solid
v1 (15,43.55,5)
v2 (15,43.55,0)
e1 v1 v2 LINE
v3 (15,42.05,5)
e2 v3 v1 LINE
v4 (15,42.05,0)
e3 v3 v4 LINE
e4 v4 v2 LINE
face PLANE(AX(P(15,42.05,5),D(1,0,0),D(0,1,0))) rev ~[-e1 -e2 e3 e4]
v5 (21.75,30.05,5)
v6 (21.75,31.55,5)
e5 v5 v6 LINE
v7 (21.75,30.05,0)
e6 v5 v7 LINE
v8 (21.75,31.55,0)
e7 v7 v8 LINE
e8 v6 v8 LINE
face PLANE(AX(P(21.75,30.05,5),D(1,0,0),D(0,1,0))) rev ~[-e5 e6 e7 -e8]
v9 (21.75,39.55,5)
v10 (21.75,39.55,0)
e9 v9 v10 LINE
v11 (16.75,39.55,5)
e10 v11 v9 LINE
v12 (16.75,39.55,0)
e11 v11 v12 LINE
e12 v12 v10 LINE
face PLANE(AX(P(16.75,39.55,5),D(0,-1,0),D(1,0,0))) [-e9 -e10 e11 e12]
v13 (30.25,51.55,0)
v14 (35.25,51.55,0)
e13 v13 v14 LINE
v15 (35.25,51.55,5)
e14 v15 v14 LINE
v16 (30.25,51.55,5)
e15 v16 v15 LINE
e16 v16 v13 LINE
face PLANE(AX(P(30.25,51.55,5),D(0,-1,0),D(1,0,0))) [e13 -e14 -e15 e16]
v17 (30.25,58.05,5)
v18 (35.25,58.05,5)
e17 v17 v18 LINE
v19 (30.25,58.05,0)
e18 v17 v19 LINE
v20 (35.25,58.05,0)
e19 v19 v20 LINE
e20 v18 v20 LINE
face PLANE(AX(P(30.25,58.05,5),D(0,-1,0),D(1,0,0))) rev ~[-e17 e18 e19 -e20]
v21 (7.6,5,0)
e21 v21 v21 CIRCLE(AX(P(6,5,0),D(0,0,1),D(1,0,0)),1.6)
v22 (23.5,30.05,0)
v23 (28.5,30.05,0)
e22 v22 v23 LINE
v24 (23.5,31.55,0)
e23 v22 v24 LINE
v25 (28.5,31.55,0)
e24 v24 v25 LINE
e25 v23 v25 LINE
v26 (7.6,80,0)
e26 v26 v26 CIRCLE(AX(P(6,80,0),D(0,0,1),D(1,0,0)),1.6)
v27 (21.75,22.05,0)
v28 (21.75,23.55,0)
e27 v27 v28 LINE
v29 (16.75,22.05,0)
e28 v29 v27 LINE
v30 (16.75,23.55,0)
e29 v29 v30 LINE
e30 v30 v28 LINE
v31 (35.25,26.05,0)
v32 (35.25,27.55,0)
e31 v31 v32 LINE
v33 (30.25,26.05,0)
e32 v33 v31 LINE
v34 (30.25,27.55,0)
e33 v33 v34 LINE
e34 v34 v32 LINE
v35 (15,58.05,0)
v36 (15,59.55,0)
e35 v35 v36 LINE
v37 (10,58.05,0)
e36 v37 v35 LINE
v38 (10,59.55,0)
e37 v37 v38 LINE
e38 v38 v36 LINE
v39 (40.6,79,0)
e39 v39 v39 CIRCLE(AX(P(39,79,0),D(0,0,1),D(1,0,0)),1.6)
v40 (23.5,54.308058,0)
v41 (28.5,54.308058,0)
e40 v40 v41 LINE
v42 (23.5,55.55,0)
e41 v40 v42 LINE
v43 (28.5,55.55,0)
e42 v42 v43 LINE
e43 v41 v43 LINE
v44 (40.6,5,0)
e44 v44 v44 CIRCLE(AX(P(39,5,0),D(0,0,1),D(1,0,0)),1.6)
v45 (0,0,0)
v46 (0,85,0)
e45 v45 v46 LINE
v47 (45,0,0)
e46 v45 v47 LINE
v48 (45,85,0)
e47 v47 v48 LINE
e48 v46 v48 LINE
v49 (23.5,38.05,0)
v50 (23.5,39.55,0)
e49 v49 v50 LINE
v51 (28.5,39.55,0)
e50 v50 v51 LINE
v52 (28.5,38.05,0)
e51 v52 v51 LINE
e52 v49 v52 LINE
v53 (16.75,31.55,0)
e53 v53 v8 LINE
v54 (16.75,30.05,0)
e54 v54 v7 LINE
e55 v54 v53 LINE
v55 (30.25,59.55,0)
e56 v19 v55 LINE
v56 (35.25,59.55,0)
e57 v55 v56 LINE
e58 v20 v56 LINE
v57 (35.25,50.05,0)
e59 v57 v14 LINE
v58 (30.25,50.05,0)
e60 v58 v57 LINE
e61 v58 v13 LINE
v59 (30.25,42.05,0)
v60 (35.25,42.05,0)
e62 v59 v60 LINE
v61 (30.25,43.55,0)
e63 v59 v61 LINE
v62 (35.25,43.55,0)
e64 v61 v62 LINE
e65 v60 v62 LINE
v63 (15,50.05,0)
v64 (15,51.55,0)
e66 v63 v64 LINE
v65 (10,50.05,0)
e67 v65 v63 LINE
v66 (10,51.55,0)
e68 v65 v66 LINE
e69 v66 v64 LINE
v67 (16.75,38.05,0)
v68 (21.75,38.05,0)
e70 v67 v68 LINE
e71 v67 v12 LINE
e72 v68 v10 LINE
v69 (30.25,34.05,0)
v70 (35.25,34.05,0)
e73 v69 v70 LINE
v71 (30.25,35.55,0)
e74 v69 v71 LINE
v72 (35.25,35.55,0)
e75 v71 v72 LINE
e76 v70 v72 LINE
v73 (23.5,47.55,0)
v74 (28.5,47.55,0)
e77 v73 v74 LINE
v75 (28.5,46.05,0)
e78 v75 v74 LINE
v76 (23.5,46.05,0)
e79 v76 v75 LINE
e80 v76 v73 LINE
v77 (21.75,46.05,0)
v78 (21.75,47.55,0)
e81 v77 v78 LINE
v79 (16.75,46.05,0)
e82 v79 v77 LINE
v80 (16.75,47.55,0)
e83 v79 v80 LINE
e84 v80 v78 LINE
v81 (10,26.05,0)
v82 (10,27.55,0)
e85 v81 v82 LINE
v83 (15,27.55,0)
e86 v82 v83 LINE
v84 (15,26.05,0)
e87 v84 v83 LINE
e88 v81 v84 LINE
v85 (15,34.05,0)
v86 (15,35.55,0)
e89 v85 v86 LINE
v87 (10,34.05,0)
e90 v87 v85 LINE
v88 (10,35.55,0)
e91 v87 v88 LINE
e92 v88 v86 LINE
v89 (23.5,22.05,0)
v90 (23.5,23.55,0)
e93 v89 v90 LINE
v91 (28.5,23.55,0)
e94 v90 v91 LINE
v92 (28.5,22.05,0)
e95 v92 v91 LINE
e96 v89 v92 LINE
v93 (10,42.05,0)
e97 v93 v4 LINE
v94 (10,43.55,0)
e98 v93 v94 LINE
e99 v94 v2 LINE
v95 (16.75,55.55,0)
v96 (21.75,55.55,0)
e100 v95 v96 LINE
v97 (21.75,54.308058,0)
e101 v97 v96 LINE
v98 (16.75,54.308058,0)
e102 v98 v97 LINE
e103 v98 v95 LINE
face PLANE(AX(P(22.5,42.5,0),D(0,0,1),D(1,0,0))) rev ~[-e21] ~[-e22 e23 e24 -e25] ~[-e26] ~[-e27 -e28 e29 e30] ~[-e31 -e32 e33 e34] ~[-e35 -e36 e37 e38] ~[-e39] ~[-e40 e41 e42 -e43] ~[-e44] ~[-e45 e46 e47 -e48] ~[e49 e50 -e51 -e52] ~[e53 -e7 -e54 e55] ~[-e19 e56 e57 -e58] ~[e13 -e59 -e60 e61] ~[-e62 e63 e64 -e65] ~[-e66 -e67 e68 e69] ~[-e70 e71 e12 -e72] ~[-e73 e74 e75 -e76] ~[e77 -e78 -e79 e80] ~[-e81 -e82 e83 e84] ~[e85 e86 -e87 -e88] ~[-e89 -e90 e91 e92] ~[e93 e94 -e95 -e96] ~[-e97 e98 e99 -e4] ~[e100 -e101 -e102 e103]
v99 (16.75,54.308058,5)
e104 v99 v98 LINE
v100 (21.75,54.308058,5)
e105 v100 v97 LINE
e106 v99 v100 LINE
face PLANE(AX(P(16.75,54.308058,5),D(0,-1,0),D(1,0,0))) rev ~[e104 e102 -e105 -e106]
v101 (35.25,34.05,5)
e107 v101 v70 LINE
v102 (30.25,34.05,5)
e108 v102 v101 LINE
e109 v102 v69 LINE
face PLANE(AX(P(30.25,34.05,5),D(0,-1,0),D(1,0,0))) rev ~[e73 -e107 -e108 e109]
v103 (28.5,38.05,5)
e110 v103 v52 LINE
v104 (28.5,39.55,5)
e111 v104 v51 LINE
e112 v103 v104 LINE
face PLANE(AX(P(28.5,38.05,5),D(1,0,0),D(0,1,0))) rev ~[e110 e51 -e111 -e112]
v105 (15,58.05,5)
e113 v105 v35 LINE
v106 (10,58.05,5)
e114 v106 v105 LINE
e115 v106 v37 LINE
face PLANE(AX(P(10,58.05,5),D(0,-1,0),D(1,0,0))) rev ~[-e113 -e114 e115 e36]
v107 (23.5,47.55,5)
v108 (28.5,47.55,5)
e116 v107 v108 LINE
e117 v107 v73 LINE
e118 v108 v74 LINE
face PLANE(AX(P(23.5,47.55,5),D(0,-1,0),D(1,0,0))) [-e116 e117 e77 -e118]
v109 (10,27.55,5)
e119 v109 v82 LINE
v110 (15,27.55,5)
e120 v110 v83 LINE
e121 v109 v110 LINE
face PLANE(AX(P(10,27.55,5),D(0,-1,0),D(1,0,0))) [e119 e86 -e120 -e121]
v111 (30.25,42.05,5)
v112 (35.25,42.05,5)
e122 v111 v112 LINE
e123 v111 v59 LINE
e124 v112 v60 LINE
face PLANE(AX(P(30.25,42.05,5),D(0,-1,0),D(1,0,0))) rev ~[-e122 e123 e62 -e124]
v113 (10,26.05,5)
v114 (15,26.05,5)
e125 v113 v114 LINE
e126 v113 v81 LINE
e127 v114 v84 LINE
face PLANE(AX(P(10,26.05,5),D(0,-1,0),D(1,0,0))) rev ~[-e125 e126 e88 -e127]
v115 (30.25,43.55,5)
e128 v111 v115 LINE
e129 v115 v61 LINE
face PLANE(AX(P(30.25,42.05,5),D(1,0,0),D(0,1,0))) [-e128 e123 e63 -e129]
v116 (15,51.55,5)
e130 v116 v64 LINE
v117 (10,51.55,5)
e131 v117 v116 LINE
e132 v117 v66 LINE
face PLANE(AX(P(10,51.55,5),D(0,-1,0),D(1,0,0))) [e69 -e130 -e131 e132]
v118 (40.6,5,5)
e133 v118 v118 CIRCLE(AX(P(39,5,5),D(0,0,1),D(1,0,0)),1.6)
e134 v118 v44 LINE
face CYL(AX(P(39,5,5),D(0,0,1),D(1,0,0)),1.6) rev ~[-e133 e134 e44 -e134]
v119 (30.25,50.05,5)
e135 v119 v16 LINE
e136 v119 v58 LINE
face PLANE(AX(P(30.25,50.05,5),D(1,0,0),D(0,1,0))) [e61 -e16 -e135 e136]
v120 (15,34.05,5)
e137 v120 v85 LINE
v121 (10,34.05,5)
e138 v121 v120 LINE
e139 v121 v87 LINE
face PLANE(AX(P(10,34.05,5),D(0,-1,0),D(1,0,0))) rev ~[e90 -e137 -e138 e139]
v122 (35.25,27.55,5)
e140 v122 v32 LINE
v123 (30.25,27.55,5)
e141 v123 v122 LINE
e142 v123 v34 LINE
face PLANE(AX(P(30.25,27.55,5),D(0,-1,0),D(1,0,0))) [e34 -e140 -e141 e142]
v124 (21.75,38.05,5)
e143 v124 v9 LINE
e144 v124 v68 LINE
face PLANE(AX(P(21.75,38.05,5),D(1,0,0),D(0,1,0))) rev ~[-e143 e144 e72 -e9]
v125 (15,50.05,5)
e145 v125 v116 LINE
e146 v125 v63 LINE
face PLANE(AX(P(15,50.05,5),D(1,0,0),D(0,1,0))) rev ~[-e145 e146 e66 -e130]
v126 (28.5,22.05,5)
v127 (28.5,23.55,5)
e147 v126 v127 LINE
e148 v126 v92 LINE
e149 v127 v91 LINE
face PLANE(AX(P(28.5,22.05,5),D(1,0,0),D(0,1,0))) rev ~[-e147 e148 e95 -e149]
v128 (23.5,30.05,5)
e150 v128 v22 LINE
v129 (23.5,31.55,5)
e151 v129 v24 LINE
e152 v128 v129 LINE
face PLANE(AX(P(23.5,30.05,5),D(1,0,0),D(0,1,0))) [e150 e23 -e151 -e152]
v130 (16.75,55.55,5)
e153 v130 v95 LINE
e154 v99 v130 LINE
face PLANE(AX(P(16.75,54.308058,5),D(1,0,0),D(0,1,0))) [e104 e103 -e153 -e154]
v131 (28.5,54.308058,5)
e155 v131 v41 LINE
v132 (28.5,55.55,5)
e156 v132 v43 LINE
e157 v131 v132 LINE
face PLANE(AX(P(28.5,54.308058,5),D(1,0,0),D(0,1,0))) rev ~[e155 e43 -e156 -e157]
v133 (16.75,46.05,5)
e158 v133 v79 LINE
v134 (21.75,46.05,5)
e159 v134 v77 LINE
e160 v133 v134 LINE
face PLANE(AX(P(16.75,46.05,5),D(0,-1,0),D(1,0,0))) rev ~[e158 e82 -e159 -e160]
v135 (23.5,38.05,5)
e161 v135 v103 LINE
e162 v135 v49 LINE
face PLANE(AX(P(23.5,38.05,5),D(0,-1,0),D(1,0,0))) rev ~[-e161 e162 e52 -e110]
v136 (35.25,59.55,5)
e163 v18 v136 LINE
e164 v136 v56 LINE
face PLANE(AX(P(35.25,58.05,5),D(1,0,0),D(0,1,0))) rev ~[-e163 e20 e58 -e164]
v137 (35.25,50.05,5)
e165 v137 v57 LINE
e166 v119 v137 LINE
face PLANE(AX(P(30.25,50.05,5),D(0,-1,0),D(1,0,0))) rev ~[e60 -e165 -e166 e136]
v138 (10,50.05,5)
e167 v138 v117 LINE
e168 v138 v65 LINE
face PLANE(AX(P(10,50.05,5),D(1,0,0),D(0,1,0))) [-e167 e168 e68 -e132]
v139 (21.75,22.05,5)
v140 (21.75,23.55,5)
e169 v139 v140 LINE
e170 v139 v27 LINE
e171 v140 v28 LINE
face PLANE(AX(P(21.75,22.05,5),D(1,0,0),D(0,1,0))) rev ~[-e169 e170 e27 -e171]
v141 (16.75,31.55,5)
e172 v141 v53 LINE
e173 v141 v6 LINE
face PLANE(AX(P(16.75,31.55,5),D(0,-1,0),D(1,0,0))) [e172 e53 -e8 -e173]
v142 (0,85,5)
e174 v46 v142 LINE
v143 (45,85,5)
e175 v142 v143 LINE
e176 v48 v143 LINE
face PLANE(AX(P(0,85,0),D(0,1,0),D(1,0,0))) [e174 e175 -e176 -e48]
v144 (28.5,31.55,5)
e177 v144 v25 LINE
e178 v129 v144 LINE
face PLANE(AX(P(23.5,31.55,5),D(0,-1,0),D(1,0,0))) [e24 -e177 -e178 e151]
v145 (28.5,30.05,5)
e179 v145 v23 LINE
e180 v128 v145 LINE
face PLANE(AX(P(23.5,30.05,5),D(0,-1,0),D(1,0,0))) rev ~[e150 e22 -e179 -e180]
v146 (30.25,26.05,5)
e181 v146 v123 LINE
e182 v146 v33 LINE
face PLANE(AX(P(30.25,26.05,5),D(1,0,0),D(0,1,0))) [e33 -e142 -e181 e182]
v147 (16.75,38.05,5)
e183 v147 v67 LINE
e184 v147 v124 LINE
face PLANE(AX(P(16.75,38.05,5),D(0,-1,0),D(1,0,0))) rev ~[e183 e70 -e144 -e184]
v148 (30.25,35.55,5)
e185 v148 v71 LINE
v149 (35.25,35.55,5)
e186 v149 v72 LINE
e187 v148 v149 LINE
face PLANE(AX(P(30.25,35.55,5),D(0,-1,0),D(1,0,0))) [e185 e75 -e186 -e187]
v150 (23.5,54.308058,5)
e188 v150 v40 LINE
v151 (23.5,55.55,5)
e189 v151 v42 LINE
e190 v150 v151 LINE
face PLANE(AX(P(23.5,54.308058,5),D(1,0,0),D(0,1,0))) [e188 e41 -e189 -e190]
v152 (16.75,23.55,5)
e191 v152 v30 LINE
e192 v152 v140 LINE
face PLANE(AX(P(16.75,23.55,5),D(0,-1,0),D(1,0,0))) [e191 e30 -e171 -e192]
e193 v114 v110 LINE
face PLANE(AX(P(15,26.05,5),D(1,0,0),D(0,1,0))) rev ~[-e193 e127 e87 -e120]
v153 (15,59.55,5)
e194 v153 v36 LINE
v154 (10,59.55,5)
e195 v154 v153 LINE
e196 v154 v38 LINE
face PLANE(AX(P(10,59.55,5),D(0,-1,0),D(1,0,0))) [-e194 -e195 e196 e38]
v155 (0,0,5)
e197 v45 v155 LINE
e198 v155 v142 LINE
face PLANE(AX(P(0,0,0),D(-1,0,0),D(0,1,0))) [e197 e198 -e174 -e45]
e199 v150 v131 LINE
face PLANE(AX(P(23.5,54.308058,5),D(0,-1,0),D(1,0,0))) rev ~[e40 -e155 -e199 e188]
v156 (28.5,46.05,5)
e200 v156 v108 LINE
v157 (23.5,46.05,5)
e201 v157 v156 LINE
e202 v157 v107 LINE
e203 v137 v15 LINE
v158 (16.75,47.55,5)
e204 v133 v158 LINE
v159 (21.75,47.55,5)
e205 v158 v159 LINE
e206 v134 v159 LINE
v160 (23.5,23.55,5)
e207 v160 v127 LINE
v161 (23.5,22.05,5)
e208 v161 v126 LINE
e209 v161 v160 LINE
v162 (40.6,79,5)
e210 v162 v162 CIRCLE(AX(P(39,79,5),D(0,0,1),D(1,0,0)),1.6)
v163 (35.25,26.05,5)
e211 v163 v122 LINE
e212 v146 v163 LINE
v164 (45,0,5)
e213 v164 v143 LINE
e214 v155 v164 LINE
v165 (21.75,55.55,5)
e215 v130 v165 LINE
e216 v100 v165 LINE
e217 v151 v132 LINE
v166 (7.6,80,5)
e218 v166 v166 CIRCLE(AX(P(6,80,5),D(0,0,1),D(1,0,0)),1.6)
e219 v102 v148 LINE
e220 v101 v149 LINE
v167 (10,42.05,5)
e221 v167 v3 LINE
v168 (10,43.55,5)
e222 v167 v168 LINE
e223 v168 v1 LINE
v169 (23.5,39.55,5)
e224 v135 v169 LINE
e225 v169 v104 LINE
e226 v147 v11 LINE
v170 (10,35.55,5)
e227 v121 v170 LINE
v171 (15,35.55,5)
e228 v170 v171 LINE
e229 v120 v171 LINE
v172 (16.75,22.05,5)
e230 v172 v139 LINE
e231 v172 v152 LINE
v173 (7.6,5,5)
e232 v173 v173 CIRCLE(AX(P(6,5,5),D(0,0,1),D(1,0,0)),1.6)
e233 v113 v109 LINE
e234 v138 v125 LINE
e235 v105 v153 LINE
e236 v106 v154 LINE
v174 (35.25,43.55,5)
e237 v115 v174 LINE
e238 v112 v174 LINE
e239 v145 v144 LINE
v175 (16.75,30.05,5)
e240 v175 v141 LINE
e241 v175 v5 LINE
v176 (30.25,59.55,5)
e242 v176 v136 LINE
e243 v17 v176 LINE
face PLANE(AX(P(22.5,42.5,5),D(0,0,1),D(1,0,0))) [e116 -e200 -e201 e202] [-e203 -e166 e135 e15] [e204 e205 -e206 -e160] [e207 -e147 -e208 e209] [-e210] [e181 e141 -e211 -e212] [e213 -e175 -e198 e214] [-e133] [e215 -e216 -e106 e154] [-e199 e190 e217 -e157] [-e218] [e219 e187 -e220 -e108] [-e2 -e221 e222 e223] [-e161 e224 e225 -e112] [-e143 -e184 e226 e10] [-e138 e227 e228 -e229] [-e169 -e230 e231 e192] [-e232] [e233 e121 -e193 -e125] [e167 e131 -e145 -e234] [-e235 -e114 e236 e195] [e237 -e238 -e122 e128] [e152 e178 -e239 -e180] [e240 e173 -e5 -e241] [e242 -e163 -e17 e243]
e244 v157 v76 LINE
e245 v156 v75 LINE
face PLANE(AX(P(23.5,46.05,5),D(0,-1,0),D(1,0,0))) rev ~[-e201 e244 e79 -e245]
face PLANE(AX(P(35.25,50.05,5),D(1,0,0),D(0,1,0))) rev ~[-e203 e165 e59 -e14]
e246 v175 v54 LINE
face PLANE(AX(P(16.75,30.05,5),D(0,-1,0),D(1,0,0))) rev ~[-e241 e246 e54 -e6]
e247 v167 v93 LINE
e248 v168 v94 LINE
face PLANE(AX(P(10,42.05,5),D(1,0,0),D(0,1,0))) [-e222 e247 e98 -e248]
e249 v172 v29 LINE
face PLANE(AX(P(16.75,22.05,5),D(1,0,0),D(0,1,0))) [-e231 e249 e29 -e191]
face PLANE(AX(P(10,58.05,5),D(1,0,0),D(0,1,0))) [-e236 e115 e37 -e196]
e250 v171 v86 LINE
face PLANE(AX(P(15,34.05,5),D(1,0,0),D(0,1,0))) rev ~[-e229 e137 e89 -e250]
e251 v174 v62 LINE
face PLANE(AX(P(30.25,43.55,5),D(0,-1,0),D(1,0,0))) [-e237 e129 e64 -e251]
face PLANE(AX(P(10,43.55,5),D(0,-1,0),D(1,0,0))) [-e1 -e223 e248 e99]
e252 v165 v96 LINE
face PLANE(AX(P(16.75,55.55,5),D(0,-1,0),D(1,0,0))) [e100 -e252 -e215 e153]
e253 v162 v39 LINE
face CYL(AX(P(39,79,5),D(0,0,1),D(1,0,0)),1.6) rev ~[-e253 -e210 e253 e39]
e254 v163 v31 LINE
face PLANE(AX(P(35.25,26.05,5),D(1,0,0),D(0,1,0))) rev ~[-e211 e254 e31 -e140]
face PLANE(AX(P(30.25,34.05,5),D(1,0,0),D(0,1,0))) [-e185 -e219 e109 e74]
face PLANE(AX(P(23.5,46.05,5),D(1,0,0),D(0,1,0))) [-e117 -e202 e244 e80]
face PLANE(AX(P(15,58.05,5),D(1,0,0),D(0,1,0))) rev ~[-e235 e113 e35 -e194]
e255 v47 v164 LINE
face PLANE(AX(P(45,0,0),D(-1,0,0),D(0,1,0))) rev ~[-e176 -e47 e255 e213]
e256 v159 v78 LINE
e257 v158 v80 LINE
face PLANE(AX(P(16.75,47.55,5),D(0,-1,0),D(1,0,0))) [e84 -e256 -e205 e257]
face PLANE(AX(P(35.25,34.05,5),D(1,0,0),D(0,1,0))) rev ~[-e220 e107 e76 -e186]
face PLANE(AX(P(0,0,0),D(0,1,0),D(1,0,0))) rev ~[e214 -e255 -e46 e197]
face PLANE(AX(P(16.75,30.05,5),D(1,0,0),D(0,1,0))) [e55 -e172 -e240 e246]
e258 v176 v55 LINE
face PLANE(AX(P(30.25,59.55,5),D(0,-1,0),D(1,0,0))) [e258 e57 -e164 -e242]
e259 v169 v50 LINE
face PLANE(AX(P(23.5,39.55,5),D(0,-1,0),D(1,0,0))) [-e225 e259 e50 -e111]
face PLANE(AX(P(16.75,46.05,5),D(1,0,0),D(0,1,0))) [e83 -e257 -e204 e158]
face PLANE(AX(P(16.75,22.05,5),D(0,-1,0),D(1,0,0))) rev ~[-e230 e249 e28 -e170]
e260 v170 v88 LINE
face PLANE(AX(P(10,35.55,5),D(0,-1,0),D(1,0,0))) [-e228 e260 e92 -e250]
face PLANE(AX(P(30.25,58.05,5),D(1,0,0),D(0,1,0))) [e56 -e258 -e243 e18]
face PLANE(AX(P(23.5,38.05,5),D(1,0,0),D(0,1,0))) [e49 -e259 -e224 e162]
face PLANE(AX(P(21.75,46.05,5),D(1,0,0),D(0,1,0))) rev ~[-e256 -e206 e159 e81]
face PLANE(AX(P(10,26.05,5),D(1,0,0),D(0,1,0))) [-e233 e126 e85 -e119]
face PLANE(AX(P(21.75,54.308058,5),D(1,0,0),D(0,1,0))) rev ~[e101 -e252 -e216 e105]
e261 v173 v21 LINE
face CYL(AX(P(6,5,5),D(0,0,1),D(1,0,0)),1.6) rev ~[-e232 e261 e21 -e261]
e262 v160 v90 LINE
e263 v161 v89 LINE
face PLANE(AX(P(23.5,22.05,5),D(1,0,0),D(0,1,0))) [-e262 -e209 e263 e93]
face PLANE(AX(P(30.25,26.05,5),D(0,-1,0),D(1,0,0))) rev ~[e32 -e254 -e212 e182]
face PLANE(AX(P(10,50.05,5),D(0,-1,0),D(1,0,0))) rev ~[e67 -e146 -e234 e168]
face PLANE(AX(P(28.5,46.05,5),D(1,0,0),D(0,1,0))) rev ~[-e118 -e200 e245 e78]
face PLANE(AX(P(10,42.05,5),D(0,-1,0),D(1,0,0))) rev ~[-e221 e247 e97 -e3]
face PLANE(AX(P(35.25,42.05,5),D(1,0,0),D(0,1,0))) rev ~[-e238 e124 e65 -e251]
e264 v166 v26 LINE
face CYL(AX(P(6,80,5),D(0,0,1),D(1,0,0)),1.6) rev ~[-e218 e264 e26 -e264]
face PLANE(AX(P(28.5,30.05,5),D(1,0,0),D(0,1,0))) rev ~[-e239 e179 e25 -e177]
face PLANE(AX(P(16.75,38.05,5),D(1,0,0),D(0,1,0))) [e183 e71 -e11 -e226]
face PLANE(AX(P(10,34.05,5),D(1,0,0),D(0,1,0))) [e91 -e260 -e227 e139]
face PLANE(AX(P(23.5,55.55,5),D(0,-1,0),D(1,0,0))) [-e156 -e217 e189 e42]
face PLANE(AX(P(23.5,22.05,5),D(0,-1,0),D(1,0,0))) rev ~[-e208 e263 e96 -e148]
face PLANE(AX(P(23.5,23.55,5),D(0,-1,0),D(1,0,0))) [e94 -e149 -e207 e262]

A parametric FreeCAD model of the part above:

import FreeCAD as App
import Part
import Sketcher
Q = App.Units.Quantity

doc = App.newDocument("Part")
body = doc.addObject("PartDesign::Body", "Body")

# Sketch on XY plane
sketch1 = body.newObject("Sketcher::SketchObject", "Sketch")
sketch1.AttachmentSupport = (doc.getObject("XY_Plane"), [""])
sketch1.MapMode = "FlatFace"
sketch1.addGeometry(Part.LineSegment(App.Vector(0, 85, 0), App.Vector(0, 0, 0)), False)
sketch1.addGeometry(Part.LineSegment(App.Vector(0, 0, 0), App.Vector(45, 0, 0)), False)
sketch1.addGeometry(Part.LineSegment(App.Vector(45, 0, 0), App.Vector(45, 85, 0)), False)
sketch1.addGeometry(Part.LineSegment(App.Vector(45, 85, 0), App.Vector(0, 85, 0)), False)
sketch1.addConstraint(Sketcher.Constraint("Coincident", 0, 2, 1, 1))
sketch1.addConstraint(Sketcher.Constraint("Coincident", 1, 2, 2, 1))
sketch1.addConstraint(Sketcher.Constraint("Coincident", 2, 2, 3, 1))
sketch1.addConstraint(Sketcher.Constraint("Coincident", 3, 2, 0, 1))
sketch1.addConstraint(Sketcher.Constraint("Vertical", 0))
sketch1.addConstraint(Sketcher.Constraint("Horizontal", 1))
sketch1.addConstraint(Sketcher.Constraint("Vertical", 2))
sketch1.addConstraint(Sketcher.Constraint("Horizontal", 3))
sketch1.addConstraint(Sketcher.Constraint("Coincident", 0, 2, -1, 1))
sketch1.addConstraint(Sketcher.Constraint("DistanceX", 1, 1, 1, 2, Q("45 mm")))
sketch1.addConstraint(Sketcher.Constraint("DistanceY", 0, 2, 0, 1, Q("85 mm")))
pad1 = body.newObject("PartDesign::Pad", "Pad")
pad1.Profile = sketch1
pad1.Length = 5

# Sketch on XY plane
sketch2 = body.newObject("Sketcher::SketchObject", "Sketch001")
sketch2.AttachmentSupport = (doc.getObject("XY_Plane"), [""])
sketch2.MapMode = "FlatFace"
sketch2.AttachmentOffset = App.Placement(App.Vector(0, 0, 5), App.Rotation())
sketch2.addGeometry(Part.LineSegment(App.Vector(10, 59.5, 0), App.Vector(10, 58, 0)), False)
sketch2.addGeometry(Part.LineSegment(App.Vector(10, 58, 0), App.Vector(15, 58, 0)), False)
sketch2.addGeometry(Part.LineSegment(App.Vector(15, 58, 0), App.Vector(15, 59.5, 0)), False)
sketch2.addGeometry(Part.LineSegment(App.Vector(15, 59.5, 0), App.Vector(10, 59.5, 0)), False)
sketch2.addGeometry(Part.LineSegment(App.Vector(30.2, 59.5, 0), App.Vector(30.2, 58, 0)), False)
sketch2.addGeometry(Part.LineSegment(App.Vector(30.2, 58, 0), App.Vector(35.2, 58, 0)), False)
sketch2.addGeometry(Part.LineSegment(App.Vector(35.2, 58, 0), App.Vector(35.2, 59.5, 0)), False)
sketch2.addGeometry(Part.LineSegment(App.Vector(35.2, 59.5, 0), App.Vector(30.2, 59.5, 0)), False)
sketch2.addGeometry(Part.LineSegment(App.Vector(16.8, 47.5, 0), App.Vector(16.8, 46, 0)), False)
sketch2.addGeometry(Part.LineSegment(App.Vector(16.8, 46, 0), App.Vector(21.8, 46, 0)), False)
sketch2.addGeometry(Part.LineSegment(App.Vector(21.8, 46, 0), App.Vector(21.8, 47.5, 0)), False)
sketch2.addGeometry(Part.LineSegment(App.Vector(21.8, 47.5, 0), App.Vector(16.8, 47.5, 0)), False)
sketch2.addGeometry(Part.LineSegment(App.Vector(10, 51.5, 0), App.Vector(10, 50, 0)), False)
sketch2.addGeometry(Part.LineSegment(App.Vector(10, 50, 0), App.Vector(15, 50, 0)), False)
sketch2.addGeometry(Part.LineSegment(App.Vector(15, 50, 0), App.Vector(15, 51.5, 0)), False)
sketch2.addGeometry(Part.LineSegment(App.Vector(15, 51.5, 0), App.Vector(10, 51.5, 0)), False)
sketch2.addGeometry(Part.LineSegment(App.Vector(30.2, 51.5, 0), App.Vector(30.2, 50, 0)), False)
sketch2.addGeometry(Part.LineSegment(App.Vector(30.2, 50, 0), App.Vector(35.2, 50, 0)), False)
sketch2.addGeometry(Part.LineSegment(App.Vector(35.2, 50, 0), App.Vector(35.2, 51.5, 0)), False)
sketch2.addGeometry(Part.LineSegment(App.Vector(35.2, 51.5, 0), App.Vector(30.2, 51.5, 0)), False)
sketch2.addGeometry(Part.LineSegment(App.Vector(10, 43.5, 0), App.Vector(10, 42, 0)), False)
sketch2.addGeometry(Part.LineSegment(App.Vector(10, 42, 0), App.Vector(15, 42, 0)), False)
sketch2.addGeometry(Part.LineSegment(App.Vector(15, 42, 0), App.Vector(15, 43.5, 0)), False)
sketch2.addGeometry(Part.LineSegment(App.Vector(15, 43.5, 0), App.Vector(10, 43.5, 0)), False)
sketch2.addGeometry(Part.LineSegment(App.Vector(30.2, 43.5, 0), App.Vector(30.2, 42, 0)), False)
sketch2.addGeometry(Part.LineSegment(App.Vector(30.2, 42, 0), App.Vector(35.2, 42, 0)), False)
sketch2.addGeometry(Part.LineSegment(App.Vector(35.2, 42, 0), App.Vector(35.2, 43.5, 0)), False)
sketch2.addGeometry(Part.LineSegment(App.Vector(35.2, 43.5, 0), App.Vector(30.2, 43.5, 0)), False)
sketch2.addGeometry(Part.LineSegment(App.Vector(10, 35.5, 0), App.Vector(10, 34, 0)), False)
sketch2.addGeometry(Part.LineSegment(App.Vector(10, 34, 0), App.Vector(15, 34, 0)), False)
sketch2.addGeometry(Part.LineSegment(App.Vector(15, 34, 0), App.Vector(15, 35.5, 0)), False)
sketch2.addGeometry(Part.LineSegment(App.Vector(15, 35.5, 0), App.Vector(10, 35.5, 0)), False)
sketch2.addGeometry(Part.LineSegment(App.Vector(30.2, 35.5, 0), App.Vector(30.2, 34, 0)), False)
sketch2.addGeometry(Part.LineSegment(App.Vector(30.2, 34, 0), App.Vector(35.2, 34, 0)), False)
sketch2.addGeometry(Part.LineSegment(App.Vector(35.2, 34, 0), App.Vector(35.2, 35.5, 0)), False)
sketch2.addGeometry(Part.LineSegment(App.Vector(35.2, 35.5, 0), App.Vector(30.2, 35.5, 0)), False)
sketch2.addGeometry(Part.LineSegment(App.Vector(30.2, 27.6, 0), App.Vector(30.2, 26.1, 0)), False)
sketch2.addGeometry(Part.LineSegment(App.Vector(30.2, 26.1, 0), App.Vector(35.2, 26.1, 0)), False)
sketch2.addGeometry(Part.LineSegment(App.Vector(35.2, 26.1, 0), App.Vector(35.2, 27.6, 0)), False)
sketch2.addGeometry(Part.LineSegment(App.Vector(35.2, 27.6, 0), App.Vector(30.2, 27.6, 0)), False)
sketch2.addGeometry(Part.LineSegment(App.Vector(10, 27.6, 0), App.Vector(10, 26.1, 0)), False)
sketch2.addGeometry(Part.LineSegment(App.Vector(10, 26.1, 0), App.Vector(15, 26.1, 0)), False)
sketch2.addGeometry(Part.LineSegment(App.Vector(15, 26.1, 0), App.Vector(15, 27.6, 0)), False)
sketch2.addGeometry(Part.LineSegment(App.Vector(15, 27.6, 0), App.Vector(10, 27.6, 0)), False)
sketch2.addGeometry(Part.LineSegment(App.Vector(16.8, 55.5, 0), App.Vector(16.8, 54.3, 0)), False)
sketch2.addGeometry(Part.LineSegment(App.Vector(16.8, 54.3, 0), App.Vector(21.8, 54.3, 0)), False)
sketch2.addGeometry(Part.LineSegment(App.Vector(21.8, 54.3, 0), App.Vector(21.8, 55.5, 0)), False)
sketch2.addGeometry(Part.LineSegment(App.Vector(21.8, 55.5, 0), App.Vector(16.8, 55.5, 0)), False)
sketch2.addGeometry(Part.LineSegment(App.Vector(23.5, 55.5, 0), App.Vector(23.5, 54.3, 0)), False)
sketch2.addGeometry(Part.LineSegment(App.Vector(23.5, 54.3, 0), App.Vector(28.5, 54.3, 0)), False)
sketch2.addGeometry(Part.LineSegment(App.Vector(28.5, 54.3, 0), App.Vector(28.5, 55.5, 0)), False)
sketch2.addGeometry(Part.LineSegment(App.Vector(28.5, 55.5, 0), App.Vector(23.5, 55.5, 0)), False)
sketch2.addGeometry(Part.LineSegment(App.Vector(23.5, 47.5, 0), App.Vector(23.5, 46, 0)), False)
sketch2.addGeometry(Part.LineSegment(App.Vector(23.5, 46, 0), App.Vector(28.5, 46, 0)), False)
sketch2.addGeometry(Part.LineSegment(App.Vector(28.5, 46, 0), App.Vector(28.5, 47.5, 0)), False)
sketch2.addGeometry(Part.LineSegment(App.Vector(28.5, 47.5, 0), App.Vector(23.5, 47.5, 0)), False)
sketch2.addGeometry(Part.LineSegment(App.Vector(23.5, 39.5, 0), App.Vector(23.5, 38, 0)), False)
sketch2.addGeometry(Part.LineSegment(App.Vector(23.5, 38, 0), App.Vector(28.5, 38, 0)), False)
sketch2.addGeometry(Part.LineSegment(App.Vector(28.5, 38, 0), App.Vector(28.5, 39.5, 0)), False)
sketch2.addGeometry(Part.LineSegment(App.Vector(28.5, 39.5, 0), App.Vector(23.5, 39.5, 0)), False)
sketch2.addGeometry(Part.LineSegment(App.Vector(16.8, 39.5, 0), App.Vector(16.8, 38, 0)), False)
sketch2.addGeometry(Part.LineSegment(App.Vector(16.8, 38, 0), App.Vector(21.8, 38, 0)), False)
sketch2.addGeometry(Part.LineSegment(App.Vector(21.8, 38, 0), App.Vector(21.8, 39.5, 0)), False)
sketch2.addGeometry(Part.LineSegment(App.Vector(21.8, 39.5, 0), App.Vector(16.8, 39.5, 0)), False)
sketch2.addGeometry(Part.LineSegment(App.Vector(16.8, 31.6, 0), App.Vector(16.8, 30.1, 0)), False)
sketch2.addGeometry(Part.LineSegment(App.Vector(16.8, 30.1, 0), App.Vector(21.8, 30.1, 0)), False)
sketch2.addGeometry(Part.LineSegment(App.Vector(21.8, 30.1, 0), App.Vector(21.8, 31.6, 0)), False)
sketch2.addGeometry(Part.LineSegment(App.Vector(21.8, 31.6, 0), App.Vector(16.8, 31.6, 0)), False)
sketch2.addGeometry(Part.LineSegment(App.Vector(23.5, 31.6, 0), App.Vector(23.5, 30.1, 0)), False)
sketch2.addGeometry(Part.LineSegment(App.Vector(23.5, 30.1, 0), App.Vector(28.5, 30.1, 0)), False)
sketch2.addGeometry(Part.LineSegment(App.Vector(28.5, 30.1, 0), App.Vector(28.5, 31.6, 0)), False)
sketch2.addGeometry(Part.LineSegment(App.Vector(28.5, 31.6, 0), App.Vector(23.5, 31.6, 0)), False)
sketch2.addGeometry(Part.LineSegment(App.Vector(23.5, 23.6, 0), App.Vector(23.5, 22.1, 0)), False)
sketch2.addGeometry(Part.LineSegment(App.Vector(23.5, 22.1, 0), App.Vector(28.5, 22.1, 0)), False)
sketch2.addGeometry(Part.LineSegment(App.Vector(28.5, 22.1, 0), App.Vector(28.5, 23.6, 0)), False)
sketch2.addGeometry(Part.LineSegment(App.Vector(28.5, 23.6, 0), App.Vector(23.5, 23.6, 0)), False)
sketch2.addGeometry(Part.LineSegment(App.Vector(16.8, 23.6, 0), App.Vector(16.8, 22.1, 0)), False)
sketch2.addGeometry(Part.LineSegment(App.Vector(16.8, 22.1, 0), App.Vector(21.8, 22.1, 0)), False)
sketch2.addGeometry(Part.LineSegment(App.Vector(21.8, 22.1, 0), App.Vector(21.8, 23.6, 0)), False)
sketch2.addGeometry(Part.LineSegment(App.Vector(21.8, 23.6, 0), App.Vector(16.8, 23.6, 0)), False)
sketch2.addConstraint(Sketcher.Constraint("Coincident", 0, 2, 1, 1))
sketch2.addConstraint(Sketcher.Constraint("Coincident", 1, 2, 2, 1))
sketch2.addConstraint(Sketcher.Constraint("Coincident", 2, 2, 3, 1))
sketch2.addConstraint(Sketcher.Constraint("Coincident", 3, 2, 0, 1))
sketch2.addConstraint(Sketcher.Constraint("Coincident", 4, 2, 5, 1))
sketch2.addConstraint(Sketcher.Constraint("Coincident", 5, 2, 6, 1))
sketch2.addConstraint(Sketcher.Constraint("Coincident", 6, 2, 7, 1))
sketch2.addConstraint(Sketcher.Constraint("Coincident", 7, 2, 4, 1))
sketch2.addConstraint(Sketcher.Constraint("Coincident", 8, 2, 9, 1))
sketch2.addConstraint(Sketcher.Constraint("Coincident", 9, 2, 10, 1))
sketch2.addConstraint(Sketcher.Constraint("Coincident", 10, 2, 11, 1))
sketch2.addConstraint(Sketcher.Constraint("Coincident", 11, 2, 8, 1))
sketch2.addConstraint(Sketcher.Constraint("Coincident", 12, 2, 13, 1))
sketch2.addConstraint(Sketcher.Constraint("Coincident", 13, 2, 14, 1))
sketch2.addConstraint(Sketcher.Constraint("Coincident", 14, 2, 15, 1))
sketch2.addConstraint(Sketcher.Constraint("Coincident", 15, 2, 12, 1))
sketch2.addConstraint(Sketcher.Constraint("Coincident", 16, 2, 17, 1))
sketch2.addConstraint(Sketcher.Constraint("Coincident", 17, 2, 18, 1))
sketch2.addConstraint(Sketcher.Constraint("Coincident", 18, 2, 19, 1))
sketch2.addConstraint(Sketcher.Constraint("Coincident", 19, 2, 16, 1))
sketch2.addConstraint(Sketcher.Constraint("Coincident", 20, 2, 21, 1))
sketch2.addConstraint(Sketcher.Constraint("Coincident", 21, 2, 22, 1))
sketch2.addConstraint(Sketcher.Constraint("Coincident", 22, 2, 23, 1))
sketch2.addConstraint(Sketcher.Constraint("Coincident", 23, 2, 20, 1))
sketch2.addConstraint(Sketcher.Constraint("Coincident", 24, 2, 25, 1))
sketch2.addConstraint(Sketcher.Constraint("Coincident", 25, 2, 26, 1))
sketch2.addConstraint(Sketcher.Constraint("Coincident", 26, 2, 27, 1))
sketch2.addConstraint(Sketcher.Constraint("Coincident", 27, 2, 24, 1))
sketch2.addConstraint(Sketcher.Constraint("Coincident", 28, 2, 29, 1))
sketch2.addConstraint(Sketcher.Constraint("Coincident", 29, 2, 30, 1))
sketch2.addConstraint(Sketcher.Constraint("Coincident", 30, 2, 31, 1))
sketch2.addConstraint(Sketcher.Constraint("Coincident", 31, 2, 28, 1))
sketch2.addConstraint(Sketcher.Constraint("Coincident", 32, 2, 33, 1))
sketch2.addConstraint(Sketcher.Constraint("Coincident", 33, 2, 34, 1))
sketch2.addConstraint(Sketcher.Constraint("Coincident", 34, 2, 35, 1))
sketch2.addConstraint(Sketcher.Constraint("Coincident", 35, 2, 32, 1))
sketch2.addConstraint(Sketcher.Constraint("Coincident", 36, 2, 37, 1))
sketch2.addConstraint(Sketcher.Constraint("Coincident", 37, 2, 38, 1))
sketch2.addConstraint(Sketcher.Constraint("Coincident", 38, 2, 39, 1))
sketch2.addConstraint(Sketcher.Constraint("Coincident", 39, 2, 36, 1))
sketch2.addConstraint(Sketcher.Constraint("Coincident", 40, 2, 41, 1))
sketch2.addConstraint(Sketcher.Constraint("Coincident", 41, 2, 42, 1))
sketch2.addConstraint(Sketcher.Constraint("Coincident", 42, 2, 43, 1))
sketch2.addConstraint(Sketcher.Constraint("Coincident", 43, 2, 40, 1))
sketch2.addConstraint(Sketcher.Constraint("Coincident", 44, 2, 45, 1))
sketch2.addConstraint(Sketcher.Constraint("Coincident", 45, 2, 46, 1))
sketch2.addConstraint(Sketcher.Constraint("Coincident", 46, 2, 47, 1))
sketch2.addConstraint(Sketcher.Constraint("Coincident", 47, 2, 44, 1))
sketch2.addConstraint(Sketcher.Constraint("Coincident", 48, 2, 49, 1))
sketch2.addConstraint(Sketcher.Constraint("Coincident", 49, 2, 50, 1))
sketch2.addConstraint(Sketcher.Constraint("Coincident", 50, 2, 51, 1))
sketch2.addConstraint(Sketcher.Constraint("Coincident", 51, 2, 48, 1))
sketch2.addConstraint(Sketcher.Constraint("Coincident", 52, 2, 53, 1))
sketch2.addConstraint(Sketcher.Constraint("Coincident", 53, 2, 54, 1))
sketch2.addConstraint(Sketcher.Constraint("Coincident", 54, 2, 55, 1))
sketch2.addConstraint(Sketcher.Constraint("Coincident", 55, 2, 52, 1))
sketch2.addConstraint(Sketcher.Constraint("Coincident", 56, 2, 57, 1))
sketch2.addConstraint(Sketcher.Constraint("Coincident", 57, 2, 58, 1))
sketch2.addConstraint(Sketcher.Constraint("Coincident", 58, 2, 59, 1))
sketch2.addConstraint(Sketcher.Constraint("Coincident", 59, 2, 56, 1))
sketch2.addConstraint(Sketcher.Constraint("Coincident", 60, 2, 61, 1))
sketch2.addConstraint(Sketcher.Constraint("Coincident", 61, 2, 62, 1))
sketch2.addConstraint(Sketcher.Constraint("Coincident", 62, 2, 63, 1))
sketch2.addConstraint(Sketcher.Constraint("Coincident", 63, 2, 60, 1))
sketch2.addConstraint(Sketcher.Constraint("Coincident", 64, 2, 65, 1))
sketch2.addConstraint(Sketcher.Constraint("Coincident", 65, 2, 66, 1))
sketch2.addConstraint(Sketcher.Constraint("Coincident", 66, 2, 67, 1))
sketch2.addConstraint(Sketcher.Constraint("Coincident", 67, 2, 64, 1))
sketch2.addConstraint(Sketcher.Constraint("Coincident", 68, 2, 69, 1))
sketch2.addConstraint(Sketcher.Constraint("Coincident", 69, 2, 70, 1))
sketch2.addConstraint(Sketcher.Constraint("Coincident", 70, 2, 71, 1))
sketch2.addConstraint(Sketcher.Constraint("Coincident", 71, 2, 68, 1))
sketch2.addConstraint(Sketcher.Constraint("Coincident", 72, 2, 73, 1))
sketch2.addConstraint(Sketcher.Constraint("Coincident", 73, 2, 74, 1))
sketch2.addConstraint(Sketcher.Constraint("Coincident", 74, 2, 75, 1))
sketch2.addConstraint(Sketcher.Constraint("Coincident", 75, 2, 72, 1))
sketch2.addConstraint(Sketcher.Constraint("Coincident", 76, 2, 77, 1))
sketch2.addConstraint(Sketcher.Constraint("Coincident", 77, 2, 78, 1))
sketch2.addConstraint(Sketcher.Constraint("Coincident", 78, 2, 79, 1))
sketch2.addConstraint(Sketcher.Constraint("Coincident", 79, 2, 76, 1))
sketch2.addConstraint(Sketcher.Constraint("Vertical", 0))
sketch2.addConstraint(Sketcher.Constraint("Horizontal", 1))
sketch2.addConstraint(Sketcher.Constraint("Vertical", 2))
sketch2.addConstraint(Sketcher.Constraint("Horizontal", 3))
sketch2.addConstraint(Sketcher.Constraint("Vertical", 4))
sketch2.addConstraint(Sketcher.Constraint("Horizontal", 5))
sketch2.addConstraint(Sketcher.Constraint("Vertical", 6))
sketch2.addConstraint(Sketcher.Constraint("Horizontal", 7))
sketch2.addConstraint(Sketcher.Constraint("Vertical", 8))
sketch2.addConstraint(Sketcher.Constraint("Horizontal", 9))
sketch2.addConstraint(Sketcher.Constraint("Vertical", 10))
sketch2.addConstraint(Sketcher.Constraint("Horizontal", 11))
sketch2.addConstraint(Sketcher.Constraint("Vertical", 12))
sketch2.addConstraint(Sketcher.Constraint("Horizontal", 13))
sketch2.addConstraint(Sketcher.Constraint("Vertical", 14))
sketch2.addConstraint(Sketcher.Constraint("Horizontal", 15))
sketch2.addConstraint(Sketcher.Constraint("Vertical", 16))
sketch2.addConstraint(Sketcher.Constraint("Horizontal", 17))
sketch2.addConstraint(Sketcher.Constraint("Vertical", 18))
sketch2.addConstraint(Sketcher.Constraint("Horizontal", 19))
sketch2.addConstraint(Sketcher.Constraint("Vertical", 20))
sketch2.addConstraint(Sketcher.Constraint("Horizontal", 21))
sketch2.addConstraint(Sketcher.Constraint("Vertical", 22))
sketch2.addConstraint(Sketcher.Constraint("Horizontal", 23))
sketch2.addConstraint(Sketcher.Constraint("Vertical", 24))
sketch2.addConstraint(Sketcher.Constraint("Horizontal", 25))
sketch2.addConstraint(Sketcher.Constraint("Vertical", 26))
sketch2.addConstraint(Sketcher.Constraint("Horizontal", 27))
sketch2.addConstraint(Sketcher.Constraint("Vertical", 28))
sketch2.addConstraint(Sketcher.Constraint("Horizontal", 29))
sketch2.addConstraint(Sketcher.Constraint("Vertical", 30))
sketch2.addConstraint(Sketcher.Constraint("Horizontal", 31))
sketch2.addConstraint(Sketcher.Constraint("Vertical", 32))
sketch2.addConstraint(Sketcher.Constraint("Horizontal", 33))
sketch2.addConstraint(Sketcher.Constraint("Vertical", 34))
sketch2.addConstraint(Sketcher.Constraint("Horizontal", 35))
sketch2.addConstraint(Sketcher.Constraint("Vertical", 36))
sketch2.addConstraint(Sketcher.Constraint("Horizontal", 37))
sketch2.addConstraint(Sketcher.Constraint("Vertical", 38))
sketch2.addConstraint(Sketcher.Constraint("Horizontal", 39))
sketch2.addConstraint(Sketcher.Constraint("Vertical", 40))
sketch2.addConstraint(Sketcher.Constraint("Horizontal", 41))
sketch2.addConstraint(Sketcher.Constraint("Vertical", 42))
sketch2.addConstraint(Sketcher.Constraint("Horizontal", 43))
sketch2.addConstraint(Sketcher.Constraint("Vertical", 44))
sketch2.addConstraint(Sketcher.Constraint("Horizontal", 45))
sketch2.addConstraint(Sketcher.Constraint("Vertical", 46))
sketch2.addConstraint(Sketcher.Constraint("Horizontal", 47))
sketch2.addConstraint(Sketcher.Constraint("Vertical", 48))
sketch2.addConstraint(Sketcher.Constraint("Horizontal", 49))
sketch2.addConstraint(Sketcher.Constraint("Vertical", 50))
sketch2.addConstraint(Sketcher.Constraint("Horizontal", 51))
sketch2.addConstraint(Sketcher.Constraint("Vertical", 52))
sketch2.addConstraint(Sketcher.Constraint("Horizontal", 53))
sketch2.addConstraint(Sketcher.Constraint("Vertical", 54))
sketch2.addConstraint(Sketcher.Constraint("Horizontal", 55))
sketch2.addConstraint(Sketcher.Constraint("Vertical", 56))
sketch2.addConstraint(Sketcher.Constraint("Horizontal", 57))
sketch2.addConstraint(Sketcher.Constraint("Vertical", 58))
sketch2.addConstraint(Sketcher.Constraint("Horizontal", 59))
sketch2.addConstraint(Sketcher.Constraint("Vertical", 60))
sketch2.addConstraint(Sketcher.Constraint("Horizontal", 61))
sketch2.addConstraint(Sketcher.Constraint("Vertical", 62))
sketch2.addConstraint(Sketcher.Constraint("Horizontal", 63))
sketch2.addConstraint(Sketcher.Constraint("Vertical", 64))
sketch2.addConstraint(Sketcher.Constraint("Horizontal", 65))
sketch2.addConstraint(Sketcher.Constraint("Vertical", 66))
sketch2.addConstraint(Sketcher.Constraint("Horizontal", 67))
sketch2.addConstraint(Sketcher.Constraint("Vertical", 68))
sketch2.addConstraint(Sketcher.Constraint("Horizontal", 69))
sketch2.addConstraint(Sketcher.Constraint("Vertical", 70))
sketch2.addConstraint(Sketcher.Constraint("Horizontal", 71))
sketch2.addConstraint(Sketcher.Constraint("Vertical", 72))
sketch2.addConstraint(Sketcher.Constraint("Horizontal", 73))
sketch2.addConstraint(Sketcher.Constraint("Vertical", 74))
sketch2.addConstraint(Sketcher.Constraint("Horizontal", 75))
sketch2.addConstraint(Sketcher.Constraint("Vertical", 76))
sketch2.addConstraint(Sketcher.Constraint("Horizontal", 77))
sketch2.addConstraint(Sketcher.Constraint("Vertical", 78))
sketch2.addConstraint(Sketcher.Constraint("Horizontal", 79))
sketch2.addConstraint(Sketcher.Constraint("Horizontal", 1, 2, 4, 2))
sketch2.addConstraint(Sketcher.Constraint("Horizontal", 3, 2, 6, 2))
sketch2.addConstraint(Sketcher.Constraint("Horizontal", 13, 2, 16, 2))
sketch2.addConstraint(Sketcher.Constraint("Horizontal", 15, 2, 18, 2))
sketch2.addConstraint(Sketcher.Constraint("Horizontal", 21, 2, 24, 2))
sketch2.addConstraint(Sketcher.Constraint("Horizontal", 23, 2, 26, 2))
sketch2.addConstraint(Sketcher.Constraint("Horizontal", 29, 2, 32, 2))
sketch2.addConstraint(Sketcher.Constraint("Horizontal", 31, 2, 34, 2))
sketch2.addConstraint(Sketcher.Constraint("Horizontal", 37, 2, 40, 2))
sketch2.addConstraint(Sketcher.Constraint("Horizontal", 39, 2, 42, 2))
sketch2.addConstraint(Sketcher.Constraint("Horizontal", 45, 2, 48, 2))
sketch2.addConstraint(Sketcher.Constraint("Horizontal", 47, 2, 50, 2))
sketch2.addConstraint(Sketcher.Constraint("Horizontal", 9, 2, 52, 2))
sketch2.addConstraint(Sketcher.Constraint("Horizontal", 11, 2, 54, 2))
sketch2.addConstraint(Sketcher.Constraint("Horizontal", 57, 2, 60, 2))
sketch2.addConstraint(Sketcher.Constraint("Horizontal", 59, 2, 62, 2))
sketch2.addConstraint(Sketcher.Constraint("Horizontal", 65, 2, 68, 2))
sketch2.addConstraint(Sketcher.Constraint("Horizontal", 67, 2, 70, 2))
sketch2.addConstraint(Sketcher.Constraint("Horizontal", 73, 2, 76, 2))
sketch2.addConstraint(Sketcher.Constraint("Horizontal", 75, 2, 78, 2))
sketch2.addConstraint(Sketcher.Constraint("Vertical", 3, 2, 12, 2))
sketch2.addConstraint(Sketcher.Constraint("Vertical", 2, 2, 13, 2))
sketch2.addConstraint(Sketcher.Constraint("Vertical", 7, 2, 16, 2))
sketch2.addConstraint(Sketcher.Constraint("Vertical", 6, 2, 17, 2))
sketch2.addConstraint(Sketcher.Constraint("Vertical", 15, 2, 20, 2))
sketch2.addConstraint(Sketcher.Constraint("Vertical", 14, 2, 21, 2))
sketch2.addConstraint(Sketcher.Constraint("Vertical", 19, 2, 24, 2))
sketch2.addConstraint(Sketcher.Constraint("Vertical", 18, 2, 25, 2))
sketch2.addConstraint(Sketcher.Constraint("Vertical", 23, 2, 28, 2))
sketch2.addConstraint(Sketcher.Constraint("Vertical", 22, 2, 29, 2))
sketch2.addConstraint(Sketcher.Constraint("Vertical", 27, 2, 32, 2))
sketch2.addConstraint(Sketcher.Constraint("Vertical", 26, 2, 33, 2))
sketch2.addConstraint(Sketcher.Constraint("Vertical", 35, 2, 36, 2))
sketch2.addConstraint(Sketcher.Constraint("Vertical", 34, 2, 37, 2))
sketch2.addConstraint(Sketcher.Constraint("Vertical", 31, 2, 40, 2))
sketch2.addConstraint(Sketcher.Constraint("Vertical", 30, 2, 41, 2))
sketch2.addConstraint(Sketcher.Constraint("Vertical", 11, 2, 44, 2))
sketch2.addConstraint(Sketcher.Constraint("Vertical", 10, 2, 45, 2))
sketch2.addConstraint(Sketcher.Constraint("Vertical", 51, 2, 52, 2))
sketch2.addConstraint(Sketcher.Constraint("Vertical", 50, 2, 53, 2))
sketch2.addConstraint(Sketcher.Constraint("Vertical", 55, 2, 56, 2))
sketch2.addConstraint(Sketcher.Constraint("Vertical", 54, 2, 57, 2))
sketch2.addConstraint(Sketcher.Constraint("Vertical", 47, 2, 60, 2))
sketch2.addConstraint(Sketcher.Constraint("Vertical", 46, 2, 61, 2))
sketch2.addConstraint(Sketcher.Constraint("Vertical", 63, 2, 64, 2))
sketch2.addConstraint(Sketcher.Constraint("Vertical", 62, 2, 65, 2))
sketch2.addConstraint(Sketcher.Constraint("Vertical", 59, 2, 68, 2))
sketch2.addConstraint(Sketcher.Constraint("Vertical", 58, 2, 69, 2))
sketch2.addConstraint(Sketcher.Constraint("Vertical", 71, 2, 72, 2))
sketch2.addConstraint(Sketcher.Constraint("Vertical", 70, 2, 73, 2))
sketch2.addConstraint(Sketcher.Constraint("Vertical", 67, 2, 76, 2))
sketch2.addConstraint(Sketcher.Constraint("Vertical", 66, 2, 77, 2))
sketch2.addConstraint(Sketcher.Constraint("Equal", 3, 5))
sketch2.addConstraint(Sketcher.Constraint("Equal", 7, 9))
sketch2.addConstraint(Sketcher.Constraint("Equal", 47, 49))
sketch2.addConstraint(Sketcher.Constraint("Equal", 6, 8))
sketch2.addConstraint(Sketcher.Constraint("Equal", 10, 12))
sketch2.addConstraint(Sketcher.Constraint("Equal", 18, 20))
sketch2.addConstraint(Sketcher.Constraint("Equal", 26, 28))
sketch2.addConstraint(Sketcher.Constraint("Equal", 34, 36))
sketch2.addConstraint(Sketcher.Constraint("Equal", 54, 56))
sketch2.addConstraint(Sketcher.Constraint("Equal", 62, 64))
sketch2.addConstraint(Sketcher.Constraint("Equal", 70, 72))
sketch2.addConstraint(Sketcher.Constraint("DistanceX", 1, 1, 1, 2, Q("5 mm")))
sketch2.addConstraint(Sketcher.Constraint("DistanceY", 0, 2, 0, 1, Q("1.5 mm")))
sketch2.addConstraint(Sketcher.Constraint("DistanceX", -1, 1, 0, 2, Q("10 mm")))
sketch2.addConstraint(Sketcher.Constraint("DistanceX", -1, 1, 48, 2, Q("23.5 mm")))
sketch2.addConstraint(Sketcher.Constraint("DistanceY", -1, 1, 0, 2, Q("58.05 mm")))
sketch2.addConstraint(Sketcher.Constraint("DistanceX", -1, 1, 4, 2, Q("30.25 mm")))
sketch2.addConstraint(Sketcher.Constraint("DistanceX", -1, 1, 8, 2, Q("16.75 mm")))
sketch2.addConstraint(Sketcher.Constraint("DistanceY", -1, 1, 8, 2, Q("46.05 mm")))
sketch2.addConstraint(Sketcher.Constraint("DistanceY", -1, 1, 12, 2, Q("50.05 mm")))
sketch2.addConstraint(Sketcher.Constraint("DistanceY", -1, 1, 20, 2, Q("42.05 mm")))
sketch2.addConstraint(Sketcher.Constraint("DistanceY", -1, 1, 28, 2, Q("34.05 mm")))
sketch2.addConstraint(Sketcher.Constraint("DistanceY", -1, 1, 36, 2, Q("26.05 mm")))
sketch2.addConstraint(Sketcher.Constraint("DistanceY", -1, 1, 46, 2, Q("55.55 mm")))
sketch2.addConstraint(Sketcher.Constraint("DistanceY", -1, 1, 56, 2, Q("38.05 mm")))
sketch2.addConstraint(Sketcher.Constraint("DistanceY", -1, 1, 64, 2, Q("30.05 mm")))
sketch2.addConstraint(Sketcher.Constraint("DistanceY", -1, 1, 72, 2, Q("22.05 mm")))
sketch2.addConstraint(Sketcher.Constraint("DistanceY", 44, 2, 44, 1, Q("1.241942 mm")))
pocket1 = body.newObject("PartDesign::Pocket", "Pocket")
pocket1.Profile = sketch2
pocket1.Length = 5

# Sketch on XY plane
sketch3 = body.newObject("Sketcher::SketchObject", "Sketch002")
sketch3.AttachmentSupport = (doc.getObject("XY_Plane"), [""])
sketch3.MapMode = "FlatFace"
sketch3.AttachmentOffset = App.Placement(App.Vector(0, 0, 5), App.Rotation())
sketch3.addGeometry(Part.Circle(App.Vector(6, 80, 0), App.Vector(0, 0, 1), 1.6), False)
sketch3.addGeometry(Part.Circle(App.Vector(39, 79, 0), App.Vector(0, 0, 1), 1.6), False)
sketch3.addGeometry(Part.Circle(App.Vector(39, 5, 0), App.Vector(0, 0, 1), 1.6), False)
sketch3.addGeometry(Part.Circle(App.Vector(6, 5, 0), App.Vector(0, 0, 1), 1.6), False)
sketch3.addConstraint(Sketcher.Constraint("Equal", 0, 1))
sketch3.addConstraint(Sketcher.Constraint("Equal", 1, 2))
sketch3.addConstraint(Sketcher.Constraint("Equal", 2, 3))
sketch3.addConstraint(Sketcher.Constraint("Horizontal", 2, 3, 3, 3))
sketch3.addConstraint(Sketcher.Constraint("Vertical", 1, 3, 2, 3))
sketch3.addConstraint(Sketcher.Constraint("Vertical", 0, 3, 3, 3))
sketch3.addConstraint(Sketcher.Constraint("Diameter", 0, Q("3.2 mm")))
sketch3.addConstraint(Sketcher.Constraint("DistanceX", -1, 1, 0, 3, Q("6 mm")))
sketch3.addConstraint(Sketcher.Constraint("DistanceY", -1, 1, 0, 3, Q("80 mm")))
sketch3.addConstraint(Sketcher.Constraint("DistanceX", -1, 1, 1, 3, Q("39 mm")))
sketch3.addConstraint(Sketcher.Constraint("DistanceY", -1, 1, 1, 3, Q("79 mm")))
sketch3.addConstraint(Sketcher.Constraint("DistanceY", -1, 1, 2, 3, Q("5 mm")))
pocket2 = body.newObject("PartDesign::Pocket", "Pocket001")
pocket2.Profile = sketch3
pocket2.Length = 5

doc.recompute()
